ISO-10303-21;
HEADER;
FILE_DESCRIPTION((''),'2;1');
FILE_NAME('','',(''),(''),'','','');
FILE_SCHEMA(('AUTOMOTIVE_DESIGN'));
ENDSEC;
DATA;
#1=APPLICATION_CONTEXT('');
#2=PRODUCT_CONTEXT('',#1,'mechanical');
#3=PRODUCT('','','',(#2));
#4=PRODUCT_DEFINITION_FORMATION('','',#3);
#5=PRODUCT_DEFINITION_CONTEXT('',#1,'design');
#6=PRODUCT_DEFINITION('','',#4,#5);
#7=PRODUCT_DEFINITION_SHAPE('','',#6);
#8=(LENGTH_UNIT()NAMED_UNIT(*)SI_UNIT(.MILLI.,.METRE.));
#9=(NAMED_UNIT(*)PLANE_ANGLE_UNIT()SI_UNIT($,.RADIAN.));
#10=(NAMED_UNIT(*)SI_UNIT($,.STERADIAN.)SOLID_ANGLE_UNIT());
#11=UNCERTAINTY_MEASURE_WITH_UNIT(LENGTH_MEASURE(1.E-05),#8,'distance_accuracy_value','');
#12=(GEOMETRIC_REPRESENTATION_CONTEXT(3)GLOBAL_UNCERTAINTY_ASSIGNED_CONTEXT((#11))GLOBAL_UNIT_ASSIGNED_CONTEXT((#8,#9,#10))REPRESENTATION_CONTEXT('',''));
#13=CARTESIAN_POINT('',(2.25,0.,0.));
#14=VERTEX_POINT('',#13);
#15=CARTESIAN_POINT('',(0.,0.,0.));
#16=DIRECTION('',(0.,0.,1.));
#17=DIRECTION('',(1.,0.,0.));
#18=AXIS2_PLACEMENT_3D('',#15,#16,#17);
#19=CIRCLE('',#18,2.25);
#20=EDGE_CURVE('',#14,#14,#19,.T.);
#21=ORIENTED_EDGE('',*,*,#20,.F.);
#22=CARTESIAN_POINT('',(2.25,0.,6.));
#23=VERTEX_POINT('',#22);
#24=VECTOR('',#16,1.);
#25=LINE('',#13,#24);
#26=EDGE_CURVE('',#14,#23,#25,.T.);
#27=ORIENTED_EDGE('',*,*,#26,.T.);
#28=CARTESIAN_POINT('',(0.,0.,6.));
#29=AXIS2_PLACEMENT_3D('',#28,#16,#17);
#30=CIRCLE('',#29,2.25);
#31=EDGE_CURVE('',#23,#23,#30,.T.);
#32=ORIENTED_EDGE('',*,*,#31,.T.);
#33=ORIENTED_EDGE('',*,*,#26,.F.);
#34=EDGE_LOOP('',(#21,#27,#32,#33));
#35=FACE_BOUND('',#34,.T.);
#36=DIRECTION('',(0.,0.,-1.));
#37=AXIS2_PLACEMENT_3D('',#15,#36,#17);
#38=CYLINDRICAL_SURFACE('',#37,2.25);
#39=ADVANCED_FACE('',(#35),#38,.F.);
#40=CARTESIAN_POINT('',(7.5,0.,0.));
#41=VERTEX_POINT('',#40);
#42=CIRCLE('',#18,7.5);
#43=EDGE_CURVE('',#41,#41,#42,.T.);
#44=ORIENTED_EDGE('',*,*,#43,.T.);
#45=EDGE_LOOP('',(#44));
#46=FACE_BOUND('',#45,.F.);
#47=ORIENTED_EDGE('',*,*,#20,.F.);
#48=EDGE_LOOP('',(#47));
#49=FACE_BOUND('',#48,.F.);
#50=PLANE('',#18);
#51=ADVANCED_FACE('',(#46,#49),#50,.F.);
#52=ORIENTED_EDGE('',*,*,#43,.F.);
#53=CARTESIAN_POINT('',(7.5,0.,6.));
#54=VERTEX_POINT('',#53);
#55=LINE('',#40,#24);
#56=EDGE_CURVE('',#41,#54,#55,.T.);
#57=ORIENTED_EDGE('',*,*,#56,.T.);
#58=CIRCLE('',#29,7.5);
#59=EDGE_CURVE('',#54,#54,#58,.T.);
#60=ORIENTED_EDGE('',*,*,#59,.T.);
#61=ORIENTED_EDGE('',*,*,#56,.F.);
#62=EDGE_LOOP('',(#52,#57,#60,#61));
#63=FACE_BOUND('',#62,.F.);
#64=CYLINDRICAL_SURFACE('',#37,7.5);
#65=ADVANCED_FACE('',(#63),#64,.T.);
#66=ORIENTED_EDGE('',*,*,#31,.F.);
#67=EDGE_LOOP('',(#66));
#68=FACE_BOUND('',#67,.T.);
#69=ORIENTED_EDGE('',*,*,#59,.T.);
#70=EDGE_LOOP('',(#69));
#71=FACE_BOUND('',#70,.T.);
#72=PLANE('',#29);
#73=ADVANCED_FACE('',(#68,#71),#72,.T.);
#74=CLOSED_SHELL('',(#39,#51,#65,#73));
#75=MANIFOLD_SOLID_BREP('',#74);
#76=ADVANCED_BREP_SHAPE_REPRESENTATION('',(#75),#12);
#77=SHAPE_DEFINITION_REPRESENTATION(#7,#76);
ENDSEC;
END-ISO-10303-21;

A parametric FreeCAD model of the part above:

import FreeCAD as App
import Part
import Sketcher

doc = App.newDocument("Part")
body = doc.addObject("PartDesign::Body", "Body")

# Sketch on XY plane
sketch1 = body.newObject("Sketcher::SketchObject", "Sketch")
sketch1.AttachmentSupport = (doc.getObject("XY_Plane"), [""])
sketch1.MapMode = "FlatFace"
sketch1.addGeometry(Part.Circle(App.Vector(0, 0, 0), App.Vector(0, 0, 1), 7.5), False)
sketch1.addGeometry(Part.Circle(App.Vector(0, 0, 0), App.Vector(0, 0, 1), 2.2), False)
sketch1.addConstraint(Sketcher.Constraint("Coincident", 0, 3, -1, 1))
sketch1.addConstraint(Sketcher.Constraint("Coincident", 1, 3, -1, 1))
sketch1.addConstraint(Sketcher.Constraint("Diameter", 0, 15.0))
sketch1.addConstraint(Sketcher.Constraint("Diameter", 1, 4.5))
pad1 = body.newObject("PartDesign::Pad", "Pad")
pad1.Profile = sketch1
pad1.Length = 6

doc.recompute()
